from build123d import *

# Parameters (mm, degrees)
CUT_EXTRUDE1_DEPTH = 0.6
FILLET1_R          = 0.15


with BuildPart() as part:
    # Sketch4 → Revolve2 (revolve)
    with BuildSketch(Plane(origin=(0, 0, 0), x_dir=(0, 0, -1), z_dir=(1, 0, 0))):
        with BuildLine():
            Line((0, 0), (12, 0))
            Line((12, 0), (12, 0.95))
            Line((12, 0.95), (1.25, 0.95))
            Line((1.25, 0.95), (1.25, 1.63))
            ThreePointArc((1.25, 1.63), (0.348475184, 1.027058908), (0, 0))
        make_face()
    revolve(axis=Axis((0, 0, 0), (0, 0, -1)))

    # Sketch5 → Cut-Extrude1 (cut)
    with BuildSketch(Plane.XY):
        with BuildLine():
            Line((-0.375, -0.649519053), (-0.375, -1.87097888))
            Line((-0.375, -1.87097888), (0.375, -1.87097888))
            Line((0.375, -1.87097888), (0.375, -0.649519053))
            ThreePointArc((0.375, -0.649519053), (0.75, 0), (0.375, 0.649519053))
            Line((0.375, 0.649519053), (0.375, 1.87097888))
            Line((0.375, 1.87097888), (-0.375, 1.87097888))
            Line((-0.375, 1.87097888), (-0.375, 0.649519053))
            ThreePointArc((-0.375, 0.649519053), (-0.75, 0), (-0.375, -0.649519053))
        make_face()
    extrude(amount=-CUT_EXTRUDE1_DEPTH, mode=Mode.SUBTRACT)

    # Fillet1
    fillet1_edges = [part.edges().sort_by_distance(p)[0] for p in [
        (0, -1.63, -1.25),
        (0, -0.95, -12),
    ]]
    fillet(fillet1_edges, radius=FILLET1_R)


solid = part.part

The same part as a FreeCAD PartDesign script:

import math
import FreeCAD as App
import Part
import Sketcher
Q = App.Units.Quantity


def edges_at(feature, points):
    """Names of the edges that pass closest to the given points."""
    edges = feature.Shape.Edges
    near = lambda p: min(range(len(edges)), key=lambda i: edges[i].distToShape(Part.Vertex(*p))[0])
    return sorted({f"Edge{near(p) + 1}" for p in points})

doc = App.newDocument("Part")
params = doc.addObject("Spreadsheet::Sheet", "Params")
for row, (alias, value) in enumerate([
    ("sketch1_height", "12 mm"),
    ("sketch1_width", "0.95 mm"),
    ("sketch1_width2", "0.68 mm"),
    ("sketch1_height2", "10.75 mm"),
    ("revolution_angle", "360 deg"),
    ("sketch2_radius", "0.75 mm"),
    ("sketch2_width", "0.75 mm"),
    ("pocket1_length", "0.6 mm"),
    ("fillet_radius", "0.15 mm"),
], start=1):
    params.set(f"A{row}", alias)
    params.set(f"B{row}", "=" + value)
    params.setAlias(f"B{row}", alias)

body = doc.addObject("PartDesign::Body", "Body")

sketch1 = body.newObject("Sketcher::SketchObject", "Sketch")
sketch1.AttachmentSupport = (doc.getObject("YZ_Plane"), [""])
sketch1.MapMode = "FlatFace"
sketch1.addGeometry(Part.LineSegment(App.Vector(0, 0, 0), App.Vector(0, -12, 0)), False)
sketch1.addGeometry(Part.LineSegment(App.Vector(0, -12, 0), App.Vector(0.9, -12, 0)), False)
sketch1.addGeometry(Part.LineSegment(App.Vector(0.9, -12, 0), App.Vector(0.9, -1.2, 0)), False)
sketch1.addGeometry(Part.LineSegment(App.Vector(0.9, -1.2, 0), App.Vector(1.6, -1.2, 0)), False)
sketch1.addGeometry(Part.ArcOfCircle(Part.Circle(App.Vector(0, -1.7, 0), App.Vector(0, 0, 1), 1.7), math.radians(15), math.radians(90)), False)
sketch1.addConstraint(Sketcher.Constraint("Coincident", 0, 2, 1, 1))
sketch1.addConstraint(Sketcher.Constraint("Coincident", 1, 2, 2, 1))
sketch1.addConstraint(Sketcher.Constraint("Coincident", 2, 2, 3, 1))
sketch1.addConstraint(Sketcher.Constraint("Coincident", 3, 2, 4, 1))
sketch1.addConstraint(Sketcher.Constraint("Coincident", 4, 2, 0, 1))
sketch1.addConstraint(Sketcher.Constraint("Vertical", 0))
sketch1.addConstraint(Sketcher.Constraint("Horizontal", 1))
sketch1.addConstraint(Sketcher.Constraint("Vertical", 2))
sketch1.addConstraint(Sketcher.Constraint("Horizontal", 3))
sketch1.addConstraint(Sketcher.Constraint("Coincident", 4, 2, -1, 1))
sketch1.addConstraint(Sketcher.Constraint("PointOnObject", 4, 3, -2))
sketch1.addConstraint(Sketcher.Constraint("DistanceY", 0, 2, 0, 1, Q("12 mm")))
sketch1.addConstraint(Sketcher.Constraint("DistanceX", 1, 1, 1, 2, Q("0.95 mm")))
sketch1.addConstraint(Sketcher.Constraint("DistanceX", 3, 1, 3, 2, Q("0.68 mm")))
sketch1.addConstraint(Sketcher.Constraint("DistanceY", 2, 1, 2, 2, Q("10.75 mm")))
sketch1.setExpression("Constraints[11]", "Params.sketch1_height")
sketch1.setExpression("Constraints[12]", "Params.sketch1_width")
sketch1.setExpression("Constraints[13]", "Params.sketch1_width2")
sketch1.setExpression("Constraints[14]", "Params.sketch1_height2")
revolution = body.newObject("PartDesign::Revolution", "Revolution")
revolution.Profile = sketch1
revolution.ReferenceAxis = (sketch1, ["V_Axis"])
revolution.setExpression("Angle", "Params.revolution_angle")

sketch2 = body.newObject("Sketcher::SketchObject", "Sketch001")
sketch2.AttachmentSupport = (doc.getObject("XY_Plane"), [""])
sketch2.MapMode = "FlatFace"
sketch2.addGeometry(Part.LineSegment(App.Vector(-0.4, -0.6, 0), App.Vector(-0.4, -1.9, 0)), False)
sketch2.addGeometry(Part.LineSegment(App.Vector(-0.4, -1.9, 0), App.Vector(0.4, -1.9, 0)), False)
sketch2.addGeometry(Part.LineSegment(App.Vector(0.4, -1.9, 0), App.Vector(0.4, -0.6, 0)), False)
sketch2.addGeometry(Part.ArcOfCircle(Part.Circle(App.Vector(0, 0, 0), App.Vector(0, 0, 1), 0.8), math.radians(-60), math.radians(60)), False)
sketch2.addGeometry(Part.LineSegment(App.Vector(0.4, 0.6, 0), App.Vector(0.4, 1.9, 0)), False)
sketch2.addGeometry(Part.LineSegment(App.Vector(0.4, 1.9, 0), App.Vector(-0.4, 1.9, 0)), False)
sketch2.addGeometry(Part.LineSegment(App.Vector(-0.4, 1.9, 0), App.Vector(-0.4, 0.6, 0)), False)
sketch2.addGeometry(Part.ArcOfCircle(Part.Circle(App.Vector(0, 0, 0), App.Vector(0, 0, 1), 0.8), math.radians(120), math.radians(240)), False)
sketch2.addConstraint(Sketcher.Constraint("Coincident", 0, 2, 1, 1))
sketch2.addConstraint(Sketcher.Constraint("Coincident", 1, 2, 2, 1))
sketch2.addConstraint(Sketcher.Constraint("Coincident", 2, 2, 3, 1))
sketch2.addConstraint(Sketcher.Constraint("Coincident", 3, 2, 4, 1))
sketch2.addConstraint(Sketcher.Constraint("Coincident", 4, 2, 5, 1))
sketch2.addConstraint(Sketcher.Constraint("Coincident", 5, 2, 6, 1))
sketch2.addConstraint(Sketcher.Constraint("Coincident", 6, 2, 7, 1))
sketch2.addConstraint(Sketcher.Constraint("Coincident", 7, 2, 0, 1))
sketch2.addConstraint(Sketcher.Constraint("Vertical", 0))
sketch2.addConstraint(Sketcher.Constraint("Horizontal", 1))
sketch2.addConstraint(Sketcher.Constraint("Vertical", 2))
sketch2.addConstraint(Sketcher.Constraint("Vertical", 4))
sketch2.addConstraint(Sketcher.Constraint("Horizontal", 5))
sketch2.addConstraint(Sketcher.Constraint("Vertical", 6))
sketch2.addConstraint(Sketcher.Constraint("Coincident", 3, 3, -1, 1))
sketch2.addConstraint(Sketcher.Constraint("Coincident", 7, 3, -1, 1))
sketch2.addConstraint(Sketcher.Constraint("Equal", 3, 7))
sketch2.addConstraint(Sketcher.Constraint("Symmetric", 0, 2, 4, 2, -1, 1))
sketch2.addConstraint(Sketcher.Constraint("Horizontal", 3, 2, 6, 2))
sketch2.addConstraint(Sketcher.Constraint("Horizontal", 2, 2, 7, 2))
sketch2.addConstraint(Sketcher.Constraint("Radius", 3, Q("0.75 mm")))
sketch2.addConstraint(Sketcher.Constraint("DistanceX", 1, 1, 1, 2, Q("0.75 mm")))
sketch2.addConstraint(Sketcher.Constraint("DistanceY", 0, 2, 0, 1, Q("1.22146 mm")))
sketch2.setExpression("Constraints[20]", "Params.sketch2_radius")
sketch2.setExpression("Constraints[21]", "Params.sketch2_width")
pocket1 = body.newObject("PartDesign::Pocket", "Pocket")
pocket1.Profile = sketch2
pocket1.setExpression("Length", "Params.pocket1_length")
doc.recompute()

fillet = body.newObject("PartDesign::Fillet", "Fillet")
fillet.Base = (pocket1, edges_at(pocket1, [(0, -1.63, -1.25), (0, -0.95, -12)]))
fillet.setExpression("Radius", "Params.fillet_radius")

doc.recompute()
